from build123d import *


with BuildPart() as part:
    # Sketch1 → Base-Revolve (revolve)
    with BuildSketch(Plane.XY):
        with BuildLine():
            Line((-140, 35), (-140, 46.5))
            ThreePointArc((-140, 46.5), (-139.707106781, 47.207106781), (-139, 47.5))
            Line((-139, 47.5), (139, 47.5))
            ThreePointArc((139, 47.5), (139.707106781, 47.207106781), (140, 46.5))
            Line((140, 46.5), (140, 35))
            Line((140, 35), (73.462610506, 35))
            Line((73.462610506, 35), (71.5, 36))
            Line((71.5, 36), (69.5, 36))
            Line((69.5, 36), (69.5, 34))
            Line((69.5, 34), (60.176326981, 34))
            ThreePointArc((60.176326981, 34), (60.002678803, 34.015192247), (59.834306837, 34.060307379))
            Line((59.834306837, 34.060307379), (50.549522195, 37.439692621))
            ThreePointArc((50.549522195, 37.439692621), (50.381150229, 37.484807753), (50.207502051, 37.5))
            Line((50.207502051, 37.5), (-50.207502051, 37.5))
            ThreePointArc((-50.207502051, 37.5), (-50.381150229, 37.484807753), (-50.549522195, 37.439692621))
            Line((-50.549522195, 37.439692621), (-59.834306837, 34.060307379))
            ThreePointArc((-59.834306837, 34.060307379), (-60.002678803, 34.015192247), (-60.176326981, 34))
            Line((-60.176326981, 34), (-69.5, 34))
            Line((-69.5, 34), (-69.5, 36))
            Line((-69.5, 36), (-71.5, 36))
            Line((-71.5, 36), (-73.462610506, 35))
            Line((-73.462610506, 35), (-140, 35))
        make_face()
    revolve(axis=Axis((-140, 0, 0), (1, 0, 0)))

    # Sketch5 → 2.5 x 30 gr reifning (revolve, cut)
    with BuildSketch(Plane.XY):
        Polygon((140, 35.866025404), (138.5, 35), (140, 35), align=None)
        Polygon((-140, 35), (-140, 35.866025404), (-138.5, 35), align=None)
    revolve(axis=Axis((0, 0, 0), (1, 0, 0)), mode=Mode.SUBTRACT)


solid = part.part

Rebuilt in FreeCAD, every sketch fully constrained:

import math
import FreeCAD as App
import Part
import Sketcher

V = App.Vector
Q = App.Units.Quantity


def add_polygon(sketch, points):
    """Adds a closed chain of lines whose ends are joined by coincident constraints."""
    first, n = sketch.GeometryCount, len(points)
    for a, b in zip(points, points[1:] + points[:1]):
        sketch.addGeometry(Part.LineSegment(App.Vector(*a, 0), App.Vector(*b, 0)), False)
    for i in range(n):
        sketch.addConstraint(Sketcher.Constraint("Coincident", first + i, 2, first + (i + 1) % n, 1))

doc = App.newDocument("Part")
body = doc.addObject("PartDesign::Body", "Body")

sketch1 = body.newObject("Sketcher::SketchObject", "Sketch")
sketch1.AttachmentSupport = (doc.getObject("XY_Plane"), [""])
sketch1.MapMode = "FlatFace"
sketch1.addGeometry([
    Part.LineSegment(V(-140, 46.5, 0), V(-140, 35, 0)),
    Part.LineSegment(V(-140, 35, 0), V(-73.46, 35, 0)),
    Part.LineSegment(V(-73.46, 35, 0), V(-71.5, 36, 0)),
    Part.LineSegment(V(-71.5, 36, 0), V(-69.5, 36, 0)),
    Part.LineSegment(V(-69.5, 36, 0), V(-69.5, 34, 0)),
    Part.LineSegment(V(-69.5, 34, 0), V(-60.18, 34, 0)),
    Part.ArcOfCircle(Part.Circle(V(-60.18, 35, 0), V(0, 0, 1), 1), math.radians(-90), math.radians(-70)),
    Part.LineSegment(V(-59.83, 34.06, 0), V(-50.55, 37.44, 0)),
    Part.ArcOfCircle(Part.Circle(V(-50.21, 36.5, 0), V(0, 0, 1), 1), math.radians(90), math.radians(110)),
    Part.LineSegment(V(-50.21, 37.5, 0), V(50.21, 37.5, 0)),
    Part.ArcOfCircle(Part.Circle(V(50.21, 36.5, 0), V(0, 0, 1), 1), math.radians(70), math.radians(90)),
    Part.LineSegment(V(50.55, 37.44, 0), V(59.83, 34.06, 0)),
    Part.ArcOfCircle(Part.Circle(V(60.18, 35, 0), V(0, 0, 1), 1), math.radians(-110), math.radians(-90)),
    Part.LineSegment(V(60.18, 34, 0), V(69.5, 34, 0)),
    Part.LineSegment(V(69.5, 34, 0), V(69.5, 36, 0)),
    Part.LineSegment(V(69.5, 36, 0), V(71.5, 36, 0)),
    Part.LineSegment(V(71.5, 36, 0), V(73.46, 35, 0)),
    Part.LineSegment(V(73.46, 35, 0), V(140, 35, 0)),
    Part.LineSegment(V(140, 35, 0), V(140, 46.5, 0)),
    Part.ArcOfCircle(Part.Circle(V(139, 46.5, 0), V(0, 0, 1), 1), math.radians(0), math.radians(90)),
    Part.LineSegment(V(139, 47.5, 0), V(-139, 47.5, 0)),
    Part.ArcOfCircle(Part.Circle(V(-139, 46.5, 0), V(0, 0, 1), 1), math.radians(90), math.radians(180)),
], False)
sketch1.addConstraint([
    Sketcher.Constraint("Coincident", 0, 2, 1, 1),
    Sketcher.Constraint("Coincident", 1, 2, 2, 1),
    Sketcher.Constraint("Coincident", 2, 2, 3, 1),
    Sketcher.Constraint("Coincident", 3, 2, 4, 1),
    Sketcher.Constraint("Coincident", 4, 2, 5, 1),
    Sketcher.Constraint("Tangent", 5, 2, 6, 1),
    Sketcher.Constraint("Tangent", 6, 2, 7, 1),
    Sketcher.Constraint("Tangent", 7, 2, 8, 2),
    Sketcher.Constraint("Tangent", 8, 1, 9, 1),
    Sketcher.Constraint("Tangent", 9, 2, 10, 2),
    Sketcher.Constraint("Tangent", 10, 1, 11, 1),
    Sketcher.Constraint("Tangent", 11, 2, 12, 1),
    Sketcher.Constraint("Tangent", 12, 2, 13, 1),
    Sketcher.Constraint("Coincident", 13, 2, 14, 1),
    Sketcher.Constraint("Coincident", 14, 2, 15, 1),
    Sketcher.Constraint("Coincident", 15, 2, 16, 1),
    Sketcher.Constraint("Coincident", 16, 2, 17, 1),
    Sketcher.Constraint("Coincident", 17, 2, 18, 1),
    Sketcher.Constraint("Tangent", 18, 2, 19, 1),
    Sketcher.Constraint("Tangent", 19, 2, 20, 1),
    Sketcher.Constraint("Tangent", 20, 2, 21, 1),
    Sketcher.Constraint("Tangent", 21, 2, 0, 1),
    Sketcher.Constraint("Vertical", 0),
    Sketcher.Constraint("Horizontal", 1),
    Sketcher.Constraint("Horizontal", 3),
    Sketcher.Constraint("Vertical", 4),
    Sketcher.Constraint("Horizontal", 5),
    Sketcher.Constraint("Horizontal", 9),
    Sketcher.Constraint("Horizontal", 13),
    Sketcher.Constraint("Vertical", 14),
    Sketcher.Constraint("Horizontal", 15),
    Sketcher.Constraint("Horizontal", 17),
    Sketcher.Constraint("Vertical", 18),
    Sketcher.Constraint("Horizontal", 20),
    Sketcher.Constraint("Equal", 6, 8),
    Sketcher.Constraint("Equal", 8, 10),
    Sketcher.Constraint("Equal", 10, 12),
    Sketcher.Constraint("Equal", 12, 19),
    Sketcher.Constraint("Equal", 19, 21),
    Sketcher.Constraint("Symmetric", 6, 3, 12, 3, -2),
    Sketcher.Constraint("Symmetric", 3, 2, 14, 2, -2),
    Sketcher.Constraint("Symmetric", 1, 2, 16, 2, -2),
    Sketcher.Constraint("Horizontal", 12, 3, 0, 2),
    Sketcher.Constraint("Horizontal", 7, 2, 10, 1),
    Sketcher.Constraint("Equal", 3, 15),
    Sketcher.Constraint("Equal", 1, 17),
    Sketcher.Constraint("Equal", 15, 4),
    Sketcher.Constraint("Radius", 6, Q("1 mm")),
    Sketcher.Constraint("DistanceX", 3, 1, 3, 2, Q("2 mm")),
    Sketcher.Constraint("DistanceX", 20, 2, 20, 1, Q("278 mm")),
    Sketcher.Constraint("Angle", 2, Q("27 deg")),
    Sketcher.Constraint("Angle", 7, Q("20 deg")),
    Sketcher.Constraint("DistanceY", 0, 2, 0, 1, Q("11.5 mm")),
    Sketcher.Constraint("DistanceY", -1, 1, 6, 3, Q("35 mm")),
    Sketcher.Constraint("DistanceY", 10, 3, 19, 3, Q("10 mm")),
    Sketcher.Constraint("DistanceX", 2, 2, -1, 1, Q("71.5 mm")),
    Sketcher.Constraint("DistanceX", 5, 1, 5, 2, Q("9.323673 mm")),
])
revolution = body.newObject("PartDesign::Revolution", "Revolution")
revolution.Profile = sketch1
revolution.ReferenceAxis = (sketch1, ["H_Axis"])
revolution.Angle = 360

sketch2 = body.newObject("Sketcher::SketchObject", "Sketch001")
sketch2.AttachmentSupport = (doc.getObject("XY_Plane"), [""])
sketch2.MapMode = "FlatFace"
add_polygon(sketch2, [(140, 35.9), (138.5, 35), (140, 35)])
add_polygon(sketch2, [(-140, 35.9), (-140, 35), (-138.5, 35)])
sketch2.addConstraint([
    Sketcher.Constraint("Horizontal", 1),
    Sketcher.Constraint("Vertical", 2),
    Sketcher.Constraint("Vertical", 3),
    Sketcher.Constraint("Horizontal", 4),
    Sketcher.Constraint("Symmetric", 1, 2, 3, 2, -2),
    Sketcher.Constraint("Horizontal", 2, 2, 5, 2),
    Sketcher.Constraint("Equal", 1, 4),
    Sketcher.Constraint("Angle", 0, Q("-150 deg")),
    Sketcher.Constraint("DistanceX", 1, 1, 1, 2, Q("1.5 mm")),
    Sketcher.Constraint("DistanceY", -1, 1, 0, 2, Q("35 mm")),
    Sketcher.Constraint("DistanceX", -1, 1, 1, 2, Q("140 mm")),
])
groove = body.newObject("PartDesign::Groove", "Groove")
groove.Profile = sketch2
groove.ReferenceAxis = (sketch2, ["H_Axis"])
groove.Angle = 360

doc.recompute()
